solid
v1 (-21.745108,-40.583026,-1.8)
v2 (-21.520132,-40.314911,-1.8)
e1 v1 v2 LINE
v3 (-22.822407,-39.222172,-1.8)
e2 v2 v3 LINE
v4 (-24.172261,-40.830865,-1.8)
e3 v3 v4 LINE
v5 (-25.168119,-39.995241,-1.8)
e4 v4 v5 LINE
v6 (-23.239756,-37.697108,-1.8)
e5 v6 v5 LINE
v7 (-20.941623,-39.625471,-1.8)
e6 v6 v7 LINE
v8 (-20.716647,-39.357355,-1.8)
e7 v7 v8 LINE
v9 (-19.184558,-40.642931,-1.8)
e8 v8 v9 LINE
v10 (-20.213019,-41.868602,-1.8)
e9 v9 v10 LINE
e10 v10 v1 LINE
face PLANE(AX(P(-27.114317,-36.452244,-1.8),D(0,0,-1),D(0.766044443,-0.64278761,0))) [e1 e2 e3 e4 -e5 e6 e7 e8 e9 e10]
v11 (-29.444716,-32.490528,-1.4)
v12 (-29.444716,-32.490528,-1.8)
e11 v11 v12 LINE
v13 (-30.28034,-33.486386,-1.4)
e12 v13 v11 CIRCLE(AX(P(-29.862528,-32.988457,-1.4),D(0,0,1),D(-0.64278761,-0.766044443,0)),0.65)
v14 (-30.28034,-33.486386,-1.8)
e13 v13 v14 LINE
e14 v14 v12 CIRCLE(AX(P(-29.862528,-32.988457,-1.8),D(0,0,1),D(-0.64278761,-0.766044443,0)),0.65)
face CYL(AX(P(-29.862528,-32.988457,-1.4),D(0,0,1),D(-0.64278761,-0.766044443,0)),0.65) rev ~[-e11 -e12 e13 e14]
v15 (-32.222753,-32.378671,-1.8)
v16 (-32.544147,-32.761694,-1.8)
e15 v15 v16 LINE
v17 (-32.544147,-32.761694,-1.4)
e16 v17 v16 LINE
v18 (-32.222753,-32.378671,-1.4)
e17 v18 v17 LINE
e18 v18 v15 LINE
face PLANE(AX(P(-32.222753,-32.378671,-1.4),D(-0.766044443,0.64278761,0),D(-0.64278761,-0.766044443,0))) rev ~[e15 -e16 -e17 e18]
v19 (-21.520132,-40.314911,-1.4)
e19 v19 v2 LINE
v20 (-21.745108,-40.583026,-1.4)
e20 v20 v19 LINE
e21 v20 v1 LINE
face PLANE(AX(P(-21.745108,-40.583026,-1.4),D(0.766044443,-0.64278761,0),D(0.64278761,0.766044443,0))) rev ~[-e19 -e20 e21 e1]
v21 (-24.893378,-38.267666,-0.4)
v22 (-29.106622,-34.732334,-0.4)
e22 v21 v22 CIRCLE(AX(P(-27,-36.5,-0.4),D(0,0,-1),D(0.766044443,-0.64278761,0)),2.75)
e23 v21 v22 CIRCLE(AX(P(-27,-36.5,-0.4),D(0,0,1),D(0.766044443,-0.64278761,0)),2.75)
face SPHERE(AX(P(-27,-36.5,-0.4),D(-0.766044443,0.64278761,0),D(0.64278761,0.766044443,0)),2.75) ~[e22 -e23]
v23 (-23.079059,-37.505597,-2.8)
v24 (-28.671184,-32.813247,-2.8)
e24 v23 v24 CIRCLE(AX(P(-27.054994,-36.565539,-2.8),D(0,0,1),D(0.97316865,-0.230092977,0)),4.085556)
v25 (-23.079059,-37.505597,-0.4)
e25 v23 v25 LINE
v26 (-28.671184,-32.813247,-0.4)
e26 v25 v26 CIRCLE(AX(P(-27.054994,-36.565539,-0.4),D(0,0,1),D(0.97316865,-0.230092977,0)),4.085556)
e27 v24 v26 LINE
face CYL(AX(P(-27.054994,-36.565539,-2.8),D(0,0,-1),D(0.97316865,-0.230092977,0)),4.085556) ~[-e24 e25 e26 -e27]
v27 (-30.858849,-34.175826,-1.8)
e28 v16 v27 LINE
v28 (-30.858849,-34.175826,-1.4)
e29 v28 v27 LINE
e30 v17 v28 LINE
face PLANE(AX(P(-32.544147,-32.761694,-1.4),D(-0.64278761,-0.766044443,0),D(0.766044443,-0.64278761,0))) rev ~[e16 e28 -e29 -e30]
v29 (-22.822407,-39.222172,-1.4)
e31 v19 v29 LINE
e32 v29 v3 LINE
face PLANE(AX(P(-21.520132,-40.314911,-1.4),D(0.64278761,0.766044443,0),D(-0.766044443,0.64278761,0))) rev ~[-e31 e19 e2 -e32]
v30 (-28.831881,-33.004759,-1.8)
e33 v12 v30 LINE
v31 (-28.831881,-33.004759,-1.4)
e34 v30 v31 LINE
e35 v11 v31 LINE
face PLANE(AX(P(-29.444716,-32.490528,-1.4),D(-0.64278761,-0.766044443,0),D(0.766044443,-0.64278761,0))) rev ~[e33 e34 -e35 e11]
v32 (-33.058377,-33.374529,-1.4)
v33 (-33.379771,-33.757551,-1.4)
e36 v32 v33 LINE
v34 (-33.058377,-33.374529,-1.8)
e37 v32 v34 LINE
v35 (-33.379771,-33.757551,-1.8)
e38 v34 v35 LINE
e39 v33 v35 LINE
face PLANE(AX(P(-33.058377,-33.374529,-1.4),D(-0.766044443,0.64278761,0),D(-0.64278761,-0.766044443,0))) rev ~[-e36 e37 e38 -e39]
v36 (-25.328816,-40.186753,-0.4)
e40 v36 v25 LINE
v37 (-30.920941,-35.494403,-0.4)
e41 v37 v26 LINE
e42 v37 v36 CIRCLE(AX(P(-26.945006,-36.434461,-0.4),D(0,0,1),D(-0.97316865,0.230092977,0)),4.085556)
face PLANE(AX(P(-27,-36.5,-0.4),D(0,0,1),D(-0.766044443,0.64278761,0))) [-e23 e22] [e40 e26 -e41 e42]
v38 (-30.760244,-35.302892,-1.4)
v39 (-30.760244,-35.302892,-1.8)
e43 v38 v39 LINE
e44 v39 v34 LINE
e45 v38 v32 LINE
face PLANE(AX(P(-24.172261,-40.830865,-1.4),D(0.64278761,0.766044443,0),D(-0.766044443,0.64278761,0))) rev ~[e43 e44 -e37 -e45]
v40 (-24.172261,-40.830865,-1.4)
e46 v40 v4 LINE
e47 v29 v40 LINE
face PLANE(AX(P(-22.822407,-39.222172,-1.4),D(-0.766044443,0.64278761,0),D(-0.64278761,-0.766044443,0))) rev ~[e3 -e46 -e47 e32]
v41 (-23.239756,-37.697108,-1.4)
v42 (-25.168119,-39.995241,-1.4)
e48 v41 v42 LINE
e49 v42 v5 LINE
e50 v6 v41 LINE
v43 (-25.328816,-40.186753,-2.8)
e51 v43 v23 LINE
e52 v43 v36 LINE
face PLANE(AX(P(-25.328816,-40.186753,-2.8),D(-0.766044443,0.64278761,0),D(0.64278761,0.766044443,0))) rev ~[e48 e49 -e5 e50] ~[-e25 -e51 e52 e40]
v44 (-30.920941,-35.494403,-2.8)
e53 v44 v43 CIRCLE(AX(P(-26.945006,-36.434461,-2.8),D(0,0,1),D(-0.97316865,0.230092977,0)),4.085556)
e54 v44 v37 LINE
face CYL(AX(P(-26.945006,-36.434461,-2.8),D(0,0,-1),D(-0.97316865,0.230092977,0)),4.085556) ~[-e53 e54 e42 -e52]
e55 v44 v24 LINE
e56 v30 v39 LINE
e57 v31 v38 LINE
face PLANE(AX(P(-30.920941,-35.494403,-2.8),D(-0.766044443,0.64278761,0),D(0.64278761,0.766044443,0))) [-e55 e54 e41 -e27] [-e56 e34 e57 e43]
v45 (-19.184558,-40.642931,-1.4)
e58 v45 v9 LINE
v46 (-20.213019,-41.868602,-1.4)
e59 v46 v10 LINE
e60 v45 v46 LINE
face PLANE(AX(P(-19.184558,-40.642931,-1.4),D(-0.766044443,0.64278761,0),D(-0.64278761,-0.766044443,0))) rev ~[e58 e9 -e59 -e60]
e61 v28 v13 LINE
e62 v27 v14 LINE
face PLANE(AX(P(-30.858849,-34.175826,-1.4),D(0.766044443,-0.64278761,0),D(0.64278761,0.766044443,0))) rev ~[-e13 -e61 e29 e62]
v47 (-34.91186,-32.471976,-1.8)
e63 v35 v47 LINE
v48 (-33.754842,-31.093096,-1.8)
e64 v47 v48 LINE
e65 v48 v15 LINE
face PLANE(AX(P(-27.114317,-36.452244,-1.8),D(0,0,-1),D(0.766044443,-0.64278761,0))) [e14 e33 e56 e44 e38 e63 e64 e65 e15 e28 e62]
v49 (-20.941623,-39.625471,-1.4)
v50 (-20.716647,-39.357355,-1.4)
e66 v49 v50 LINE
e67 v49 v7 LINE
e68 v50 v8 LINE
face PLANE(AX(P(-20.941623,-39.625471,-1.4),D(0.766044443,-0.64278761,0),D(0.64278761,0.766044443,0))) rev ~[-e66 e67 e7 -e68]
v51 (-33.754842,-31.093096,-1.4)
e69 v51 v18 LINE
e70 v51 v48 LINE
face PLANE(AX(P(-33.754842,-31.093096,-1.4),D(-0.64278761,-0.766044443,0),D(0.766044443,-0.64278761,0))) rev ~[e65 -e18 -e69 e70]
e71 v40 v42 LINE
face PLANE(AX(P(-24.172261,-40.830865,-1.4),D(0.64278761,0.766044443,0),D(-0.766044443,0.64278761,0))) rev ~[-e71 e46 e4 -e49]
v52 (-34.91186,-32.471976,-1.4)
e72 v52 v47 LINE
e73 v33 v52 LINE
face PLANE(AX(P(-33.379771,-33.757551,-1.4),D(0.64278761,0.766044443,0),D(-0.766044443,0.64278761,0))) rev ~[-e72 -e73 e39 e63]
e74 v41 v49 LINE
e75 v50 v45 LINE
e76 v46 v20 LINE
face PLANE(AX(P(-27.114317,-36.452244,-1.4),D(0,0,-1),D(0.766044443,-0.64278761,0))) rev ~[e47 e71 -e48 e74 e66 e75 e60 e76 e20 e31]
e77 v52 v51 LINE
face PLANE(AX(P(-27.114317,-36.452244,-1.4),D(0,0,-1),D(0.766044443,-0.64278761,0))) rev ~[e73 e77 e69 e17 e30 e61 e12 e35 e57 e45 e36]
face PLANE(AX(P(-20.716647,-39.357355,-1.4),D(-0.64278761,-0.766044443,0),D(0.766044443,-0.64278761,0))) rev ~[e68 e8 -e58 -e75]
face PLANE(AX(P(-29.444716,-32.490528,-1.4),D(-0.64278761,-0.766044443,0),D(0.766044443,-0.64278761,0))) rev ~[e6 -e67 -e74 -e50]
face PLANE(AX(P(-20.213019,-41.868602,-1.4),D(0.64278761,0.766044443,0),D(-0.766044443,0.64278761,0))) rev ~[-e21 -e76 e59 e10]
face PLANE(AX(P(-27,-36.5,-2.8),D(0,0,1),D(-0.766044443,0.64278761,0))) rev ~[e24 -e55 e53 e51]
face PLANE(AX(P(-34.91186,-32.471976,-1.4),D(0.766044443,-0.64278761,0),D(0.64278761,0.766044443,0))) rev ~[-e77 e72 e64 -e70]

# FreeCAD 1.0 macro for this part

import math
import FreeCAD as App
import Part
import Sketcher
Q = App.Units.Quantity

doc = App.newDocument("Part")
body = doc.addObject("PartDesign::Body", "Body")

sketch1 = doc.addObject("Sketcher::SketchObject", "Sketch")
body.addObject(sketch1)
sketch1.AttachmentSupport = (doc.XY_Plane, [""])
sketch1.MapMode = "FlatFace"
sketch1.AttachmentOffset = App.Placement(App.Vector(0, 0, 2.4), App.Rotation())
sketch1.addGeometry(Part.ArcOfCircle(Part.Circle(App.Vector(0, 0, 0), App.Vector(0, 0, 1), 2.75), math.radians(180), math.radians(360)), False)
sketch1.addGeometry(Part.LineSegment(App.Vector(2.75, 0, 0), App.Vector(-2.75, 0, 0)), False)
sketch1.addConstraint(Sketcher.Constraint("Coincident", 0, 1, 1, 2))
sketch1.addConstraint(Sketcher.Constraint("Coincident", 1, 1, 0, 2))
sketch1.addConstraint(Sketcher.Constraint("Horizontal", 1))
sketch1.addConstraint(Sketcher.Constraint("Coincident", 0, 3, -1, 1))
sketch1.addConstraint(Sketcher.Constraint("PointOnObject", 0, 1, -1))
sketch1.addConstraint(Sketcher.Constraint("Radius", 0, Q("2.75 mm")))
revolution = doc.addObject("PartDesign::Revolution", "Revolution")
body.addObject(revolution)
revolution.Profile = sketch1
revolution.ReferenceAxis = (sketch1, ["H_Axis"])
revolution.Angle = 180
revolution.Reversed = True
body2 = doc.addObject("PartDesign::Body", "Body001")

sketch2 = doc.addObject("Sketcher::SketchObject", "Sketch001")
body2.addObject(sketch2)
sketch2.AttachmentSupport = (doc.getObject("XY_Plane001"), [""])
sketch2.MapMode = "FlatFace"
sketch2.addGeometry(Part.LineSegment(App.Vector(6.65, -2, 0), App.Vector(6.65, -1.5, 0)), False)
sketch2.addGeometry(Part.LineSegment(App.Vector(6.65, -1.5, 0), App.Vector(-4.95, -1.5, 0)), False)
sketch2.addGeometry(Part.LineSegment(App.Vector(-4.95, -1.5, 0), App.Vector(-4.95, 0.6, 0)), False)
sketch2.addGeometry(Part.LineSegment(App.Vector(-4.95, 0.6, 0), App.Vector(-6.65, 0.6, 0)), False)
sketch2.addGeometry(Part.LineSegment(App.Vector(-6.65, 0.6, 0), App.Vector(-6.65, 0.25, 0)), False)
sketch2.addGeometry(Part.LineSegment(App.Vector(-6.65, 0.25, 0), App.Vector(-8.65, 0.25, 0)), False)
sketch2.addGeometry(Part.LineSegment(App.Vector(-8.65, 0.25, 0), App.Vector(-8.65, 1.85, 0)), False)
sketch2.addGeometry(Part.LineSegment(App.Vector(-8.65, 1.85, 0), App.Vector(-6.65, 1.85, 0)), False)
sketch2.addGeometry(Part.LineSegment(App.Vector(-6.65, 1.85, 0), App.Vector(-6.65, 1.5, 0)), False)
sketch2.addGeometry(Part.LineSegment(App.Vector(-6.65, 1.5, 0), App.Vector(4.45, 1.5, 0)), False)
sketch2.addGeometry(Part.ArcOfCircle(Part.Circle(App.Vector(4.45, 0.85, 0), App.Vector(0, 0, 1), 0.65), math.radians(90), math.radians(270)), False)
sketch2.addGeometry(Part.LineSegment(App.Vector(4.45, 0.2, 0), App.Vector(4.45, -0.7, 0)), False)
sketch2.addGeometry(Part.LineSegment(App.Vector(4.45, -0.7, 0), App.Vector(6.65, -0.7, 0)), False)
sketch2.addGeometry(Part.LineSegment(App.Vector(6.65, -0.7, 0), App.Vector(6.65, -0.2, 0)), False)
sketch2.addGeometry(Part.LineSegment(App.Vector(6.65, -0.2, 0), App.Vector(8.65, -0.2, 0)), False)
sketch2.addGeometry(Part.LineSegment(App.Vector(8.65, -0.2, 0), App.Vector(8.65, -2, 0)), False)
sketch2.addGeometry(Part.LineSegment(App.Vector(8.65, -2, 0), App.Vector(6.65, -2, 0)), False)
sketch2.addConstraint(Sketcher.Constraint("Coincident", 0, 2, 1, 1))
sketch2.addConstraint(Sketcher.Constraint("Coincident", 1, 2, 2, 1))
sketch2.addConstraint(Sketcher.Constraint("Coincident", 2, 2, 3, 1))
sketch2.addConstraint(Sketcher.Constraint("Coincident", 3, 2, 4, 1))
sketch2.addConstraint(Sketcher.Constraint("Coincident", 4, 2, 5, 1))
sketch2.addConstraint(Sketcher.Constraint("Coincident", 5, 2, 6, 1))
sketch2.addConstraint(Sketcher.Constraint("Coincident", 6, 2, 7, 1))
sketch2.addConstraint(Sketcher.Constraint("Coincident", 7, 2, 8, 1))
sketch2.addConstraint(Sketcher.Constraint("Coincident", 8, 2, 9, 1))
sketch2.addConstraint(Sketcher.Constraint("Tangent", 9, 2, 10, 1))
sketch2.addConstraint(Sketcher.Constraint("Coincident", 10, 2, 11, 1))
sketch2.addConstraint(Sketcher.Constraint("Coincident", 11, 2, 12, 1))
sketch2.addConstraint(Sketcher.Constraint("Coincident", 12, 2, 13, 1))
sketch2.addConstraint(Sketcher.Constraint("Coincident", 13, 2, 14, 1))
sketch2.addConstraint(Sketcher.Constraint("Coincident", 14, 2, 15, 1))
sketch2.addConstraint(Sketcher.Constraint("Coincident", 15, 2, 16, 1))
sketch2.addConstraint(Sketcher.Constraint("Coincident", 16, 2, 0, 1))
sketch2.addConstraint(Sketcher.Constraint("Vertical", 0))
sketch2.addConstraint(Sketcher.Constraint("Horizontal", 1))
sketch2.addConstraint(Sketcher.Constraint("Vertical", 2))
sketch2.addConstraint(Sketcher.Constraint("Horizontal", 3))
sketch2.addConstraint(Sketcher.Constraint("Vertical", 4))
sketch2.addConstraint(Sketcher.Constraint("Horizontal", 5))
sketch2.addConstraint(Sketcher.Constraint("Vertical", 6))
sketch2.addConstraint(Sketcher.Constraint("Horizontal", 7))
sketch2.addConstraint(Sketcher.Constraint("Vertical", 8))
sketch2.addConstraint(Sketcher.Constraint("Horizontal", 9))
sketch2.addConstraint(Sketcher.Constraint("Vertical", 11))
sketch2.addConstraint(Sketcher.Constraint("Horizontal", 12))
sketch2.addConstraint(Sketcher.Constraint("Vertical", 13))
sketch2.addConstraint(Sketcher.Constraint("Horizontal", 14))
sketch2.addConstraint(Sketcher.Constraint("Vertical", 15))
sketch2.addConstraint(Sketcher.Constraint("Horizontal", 16))
sketch2.addConstraint(Sketcher.Constraint("Symmetric", 0, 2, 8, 2, -1, 1))
sketch2.addConstraint(Sketcher.Constraint("Vertical", 4, 2, 7, 2))
sketch2.addConstraint(Sketcher.Constraint("Vertical", 9, 2, 10, 2))
sketch2.addConstraint(Sketcher.Constraint("Vertical", 0, 2, 12, 2))
sketch2.addConstraint(Sketcher.Constraint("Equal", 7, 14))
sketch2.addConstraint(Sketcher.Constraint("Equal", 4, 8))
sketch2.addConstraint(Sketcher.Constraint("Equal", 0, 13))
sketch2.addConstraint(Sketcher.Constraint("DistanceX", 5, 2, 5, 1, Q("2 mm")))
sketch2.addConstraint(Sketcher.Constraint("Radius", 10, Q("0.65 mm")))
sketch2.addConstraint(Sketcher.Constraint("DistanceX", 1, 2, 1, 1, Q("11.6 mm")))
sketch2.addConstraint(Sketcher.Constraint("DistanceX", 3, 2, 3, 1, Q("1.7 mm")))
sketch2.addConstraint(Sketcher.Constraint("DistanceX", 9, 1, 9, 2, Q("11.1 mm")))
sketch2.addConstraint(Sketcher.Constraint("DistanceY", 0, 1, 0, 2, Q("0.5 mm")))
sketch2.addConstraint(Sketcher.Constraint("DistanceY", 2, 1, 2, 2, Q("2.1 mm")))
sketch2.addConstraint(Sketcher.Constraint("DistanceY", 6, 1, 6, 2, Q("1.6 mm")))
sketch2.addConstraint(Sketcher.Constraint("DistanceY", 11, 2, 11, 1, Q("0.9 mm")))
sketch2.addConstraint(Sketcher.Constraint("DistanceY", 15, 2, 15, 1, Q("1.8 mm")))
pad1 = doc.addObject("PartDesign::Pad", "Pad")
body2.addObject(pad1)
pad1.Profile = sketch2
pad1.Length = 0.4
body3 = doc.addObject("PartDesign::Body", "Body002")
doc.recompute()

body2.Placement = App.Placement(App.Vector(0, 0, 1.4), App.Rotation(App.Vector(1, 0, 0), 180))
boolean = doc.addObject("PartDesign::Boolean", "Boolean")
body3.addObject(boolean)
boolean.Type = "Fuse"
boolean.addObjects([body2])
body4 = doc.addObject("PartDesign::Body", "Body003")

sketch3 = doc.addObject("Sketcher::SketchObject", "Sketch002")
body4.addObject(sketch3)
sketch3.AttachmentSupport = (doc.getObject("XY_Plane003"), [""])
sketch3.MapMode = "FlatFace"
sketch3.addGeometry(Part.LineSegment(App.Vector(-3.65, 1.75, 0), App.Vector(-3.65, -1.75, 0)), False)
sketch3.addGeometry(Part.ArcOfCircle(Part.Circle(App.Vector(0, 0.085556, 0), App.Vector(0, 0, 1), 4.085556), math.radians(-153.302546), math.radians(-26.697454)), False)
sketch3.addGeometry(Part.LineSegment(App.Vector(3.65, -1.75, 0), App.Vector(3.65, 1.75, 0)), False)
sketch3.addGeometry(Part.ArcOfCircle(Part.Circle(App.Vector(0, -0.085556, 0), App.Vector(0, 0, 1), 4.085556), math.radians(26.697454), math.radians(153.302546)), False)
sketch3.addConstraint(Sketcher.Constraint("Coincident", 0, 2, 1, 1))
sketch3.addConstraint(Sketcher.Constraint("Coincident", 1, 2, 2, 1))
sketch3.addConstraint(Sketcher.Constraint("Coincident", 2, 2, 3, 1))
sketch3.addConstraint(Sketcher.Constraint("Coincident", 3, 2, 0, 1))
sketch3.addConstraint(Sketcher.Constraint("Vertical", 0))
sketch3.addConstraint(Sketcher.Constraint("Vertical", 2))
sketch3.addConstraint(Sketcher.Constraint("Equal", 1, 3))
sketch3.addConstraint(Sketcher.Constraint("Symmetric", 1, 3, 3, 3, -1, 1))
sketch3.addConstraint(Sketcher.Constraint("Symmetric", 0, 2, 1, 2, -2))
sketch3.addConstraint(Sketcher.Constraint("DistanceY", 0, 2, 0, 1, Q("3.5 mm")))
sketch3.addConstraint(Sketcher.Constraint("DistanceX", 0, 2, 1, 2, Q("7.3 mm")))
sketch3.addConstraint(Sketcher.Constraint("Radius", 1, Q("4.085556 mm")))
pad2 = doc.addObject("PartDesign::Pad", "Pad001")
body4.addObject(pad2)
pad2.Profile = sketch3
pad2.Length = 2.4
doc.recompute()

boolean2 = doc.addObject("PartDesign::Boolean", "Boolean001")
body4.addObject(boolean2)
boolean2.Type = "Fuse"
boolean2.addObjects([body])
doc.recompute()

boolean3 = doc.addObject("PartDesign::Boolean", "Boolean002")
body4.addObject(boolean3)
boolean3.Type = "Fuse"
boolean3.addObjects([body3])
body5 = doc.addObject("PartDesign::Body", "Body004")
doc.recompute()

body4.Placement = App.Placement(App.Vector(-27, -36.5, -2.8), App.Rotation(App.Vector(0, 0, 1), 140))
boolean4 = doc.addObject("PartDesign::Boolean", "Boolean003")
body5.addObject(boolean4)
boolean4.Type = "Fuse"
boolean4.addObjects([body4])

doc.recompute()
